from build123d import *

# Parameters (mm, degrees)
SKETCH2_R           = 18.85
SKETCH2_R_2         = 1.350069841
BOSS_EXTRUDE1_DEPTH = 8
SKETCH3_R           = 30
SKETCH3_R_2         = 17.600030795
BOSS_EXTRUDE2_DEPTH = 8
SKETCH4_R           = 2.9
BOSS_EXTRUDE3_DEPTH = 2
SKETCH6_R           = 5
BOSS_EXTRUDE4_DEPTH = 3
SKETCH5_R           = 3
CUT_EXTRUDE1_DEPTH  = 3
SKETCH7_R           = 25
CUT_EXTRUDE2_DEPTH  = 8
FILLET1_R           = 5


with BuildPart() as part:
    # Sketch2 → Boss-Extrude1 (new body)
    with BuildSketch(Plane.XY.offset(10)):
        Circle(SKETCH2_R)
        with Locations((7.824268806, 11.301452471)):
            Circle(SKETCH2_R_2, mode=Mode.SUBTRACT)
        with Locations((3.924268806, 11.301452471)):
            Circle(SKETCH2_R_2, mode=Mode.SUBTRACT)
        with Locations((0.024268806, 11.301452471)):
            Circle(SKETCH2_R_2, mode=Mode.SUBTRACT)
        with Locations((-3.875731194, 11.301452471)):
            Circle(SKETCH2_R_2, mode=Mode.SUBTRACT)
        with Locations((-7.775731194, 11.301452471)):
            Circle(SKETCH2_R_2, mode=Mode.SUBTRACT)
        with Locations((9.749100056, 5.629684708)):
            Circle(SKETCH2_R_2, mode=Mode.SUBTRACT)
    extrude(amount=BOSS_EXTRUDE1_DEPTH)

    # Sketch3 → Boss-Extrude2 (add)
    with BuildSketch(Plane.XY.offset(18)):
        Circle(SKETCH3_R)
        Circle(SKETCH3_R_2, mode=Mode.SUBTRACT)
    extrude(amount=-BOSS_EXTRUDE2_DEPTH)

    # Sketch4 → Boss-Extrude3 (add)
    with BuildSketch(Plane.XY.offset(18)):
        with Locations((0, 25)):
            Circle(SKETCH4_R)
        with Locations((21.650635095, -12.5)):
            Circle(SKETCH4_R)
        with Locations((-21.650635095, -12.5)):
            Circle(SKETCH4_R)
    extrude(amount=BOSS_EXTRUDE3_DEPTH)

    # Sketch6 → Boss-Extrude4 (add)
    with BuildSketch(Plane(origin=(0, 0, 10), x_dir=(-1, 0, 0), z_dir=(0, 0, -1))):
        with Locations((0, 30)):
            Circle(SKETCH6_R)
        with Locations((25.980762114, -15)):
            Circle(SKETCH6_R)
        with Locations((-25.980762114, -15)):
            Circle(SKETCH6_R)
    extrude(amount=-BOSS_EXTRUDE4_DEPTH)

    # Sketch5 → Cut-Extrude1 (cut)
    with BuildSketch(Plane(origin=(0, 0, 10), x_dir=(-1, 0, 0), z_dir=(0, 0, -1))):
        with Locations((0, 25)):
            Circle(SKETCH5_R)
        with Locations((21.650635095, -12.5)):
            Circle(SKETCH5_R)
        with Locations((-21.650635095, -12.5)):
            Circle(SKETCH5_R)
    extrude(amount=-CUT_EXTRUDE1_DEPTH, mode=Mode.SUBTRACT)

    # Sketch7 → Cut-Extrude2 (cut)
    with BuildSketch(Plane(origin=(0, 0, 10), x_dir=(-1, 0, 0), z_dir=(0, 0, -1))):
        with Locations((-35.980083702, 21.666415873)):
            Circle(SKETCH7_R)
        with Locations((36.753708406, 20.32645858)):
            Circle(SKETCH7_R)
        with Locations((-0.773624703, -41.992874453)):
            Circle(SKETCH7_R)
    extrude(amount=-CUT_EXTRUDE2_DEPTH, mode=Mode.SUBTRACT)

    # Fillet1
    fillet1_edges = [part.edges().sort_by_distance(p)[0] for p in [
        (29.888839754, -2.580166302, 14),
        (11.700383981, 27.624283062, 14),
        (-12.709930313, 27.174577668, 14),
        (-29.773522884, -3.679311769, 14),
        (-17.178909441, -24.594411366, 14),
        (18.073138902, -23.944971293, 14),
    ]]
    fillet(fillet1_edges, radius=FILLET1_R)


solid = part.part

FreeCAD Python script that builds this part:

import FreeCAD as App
import Part
import Sketcher
Q = App.Units.Quantity


def edges_at(feature, points):
    """Names of the edges that pass closest to the given points."""
    edges = feature.Shape.Edges
    near = lambda p: min(range(len(edges)), key=lambda i: edges[i].distToShape(Part.Vertex(*p))[0])
    return sorted({f"Edge{near(p) + 1}" for p in points})

doc = App.newDocument("Part")
params = doc.addObject("Spreadsheet::Sheet", "Params")
for row, (alias, value) in enumerate([
    ("sketch1_diameter", "37.7 mm"),
    ("pad1_length", "8 mm"),
    ("sketch2_diameter", "60 mm"),
    ("pad2_length", "8 mm"),
    ("sketch3_diameter", "5.8 mm"),
    ("pad3_length", "2 mm"),
    ("sketch4_diameter", "10 mm"),
    ("pad4_length", "3 mm"),
    ("sketch5_diameter", "6 mm"),
    ("pocket1_length", "3 mm"),
    ("sketch6_diameter", "50 mm"),
    ("pocket2_length", "8 mm"),
    ("fillet_radius", "5 mm"),
], start=1):
    params.set(f"A{row}", alias)
    params.set(f"B{row}", "=" + value)
    params.setAlias(f"B{row}", alias)

body = doc.addObject("PartDesign::Body", "Body")

# Sketch on XY plane
sketch1 = doc.addObject("Sketcher::SketchObject", "Sketch")
body.addObject(sketch1)
sketch1.AttachmentSupport = (doc.XY_Plane, [""])
sketch1.MapMode = "FlatFace"
sketch1.AttachmentOffset = App.Placement(App.Vector(0, 0, 10), App.Rotation())
sketch1.addGeometry([
    Part.Circle(App.Vector(0, 0, 0), App.Vector(0, 0, 1), 18.9),  # 0
    Part.Circle(App.Vector(9.7, 5.6, 0), App.Vector(0, 0, 1), 1.4),  # 1
    Part.Circle(App.Vector(-7.8, 11.3, 0), App.Vector(0, 0, 1), 1.4),  # 2
    Part.Circle(App.Vector(-3.9, 11.3, 0), App.Vector(0, 0, 1), 1.4),  # 3
    Part.Circle(App.Vector(0, 11.3, 0), App.Vector(0, 0, 1), 1.4),  # 4
    Part.Circle(App.Vector(3.9, 11.3, 0), App.Vector(0, 0, 1), 1.4),  # 5
    Part.Circle(App.Vector(7.8, 11.3, 0), App.Vector(0, 0, 1), 1.4),  # 6
], False)
sketch1.addConstraint([
    Sketcher.Constraint("Coincident", 0, 3, -1, 1),
    Sketcher.Constraint("Equal", 1, 2),
    Sketcher.Constraint("Equal", 2, 3),
    Sketcher.Constraint("Equal", 3, 4),
    Sketcher.Constraint("Equal", 4, 5),
    Sketcher.Constraint("Equal", 5, 6),
    Sketcher.Constraint("Horizontal", 2, 3, 3, 3),
    Sketcher.Constraint("Horizontal", 3, 3, 4, 3),
    Sketcher.Constraint("Horizontal", 4, 3, 5, 3),
    Sketcher.Constraint("Horizontal", 5, 3, 6, 3),
    Sketcher.Constraint("Diameter", 0, Q("37.7 mm")),
    Sketcher.Constraint("DistanceX", 2, 3, 3, 3, Q("3.9 mm")),
    Sketcher.Constraint("DistanceX", 3, 3, 4, 3, Q("3.9 mm")),
    Sketcher.Constraint("DistanceX", 4, 3, 5, 3, Q("3.9 mm")),
    Sketcher.Constraint("DistanceX", 5, 3, 6, 3, Q("3.9 mm")),
    Sketcher.Constraint("Diameter", 1, Q("2.70014 mm")),
    Sketcher.Constraint("DistanceX", -1, 1, 1, 3, Q("9.7491 mm")),
    Sketcher.Constraint("DistanceX", 2, 3, -1, 1, Q("7.775731 mm")),
    Sketcher.Constraint("DistanceY", -1, 1, 1, 3, Q("5.629685 mm")),
    Sketcher.Constraint("DistanceY", -1, 1, 2, 3, Q("11.301452 mm")),
])
sketch1.setExpression("Constraints[10]", "Params.sketch1_diameter")
pad1 = doc.addObject("PartDesign::Pad", "Pad")
body.addObject(pad1)
pad1.Profile = sketch1
pad1.setExpression("Length", "Params.pad1_length")

# Sketch on XY plane
sketch2 = doc.addObject("Sketcher::SketchObject", "Sketch001")
body.addObject(sketch2)
sketch2.AttachmentSupport = (doc.XY_Plane, [""])
sketch2.MapMode = "FlatFace"
sketch2.AttachmentOffset = App.Placement(App.Vector(0, 0, 18), App.Rotation())
sketch2.addGeometry([
    Part.Circle(App.Vector(0, 0, 0), App.Vector(0, 0, 1), 30),
    Part.Circle(App.Vector(0, 0, 0), App.Vector(0, 0, 1), 18),
], False)
sketch2.addConstraint([
    Sketcher.Constraint("Coincident", 0, 3, -1, 1),
    Sketcher.Constraint("Coincident", 1, 3, -1, 1),
    Sketcher.Constraint("Diameter", 0, Q("60 mm")),
    Sketcher.Constraint("Diameter", 1, Q("35.200062 mm")),
])
sketch2.setExpression("Constraints[2]", "Params.sketch2_diameter")
pad2 = doc.addObject("PartDesign::Pad", "Pad001")
body.addObject(pad2)
pad2.Profile = sketch2
pad2.setExpression("Length", "Params.pad2_length")
pad2.Reversed = True

# Sketch on XY plane
sketch3 = doc.addObject("Sketcher::SketchObject", "Sketch002")
body.addObject(sketch3)
sketch3.AttachmentSupport = (doc.XY_Plane, [""])
sketch3.MapMode = "FlatFace"
sketch3.AttachmentOffset = App.Placement(App.Vector(0, 0, 18), App.Rotation())
sketch3.addGeometry([
    Part.Circle(App.Vector(0, 25, 0), App.Vector(0, 0, 1), 2.9),
    Part.Circle(App.Vector(21.7, -12.5, 0), App.Vector(0, 0, 1), 2.9),
    Part.Circle(App.Vector(-21.7, -12.5, 0), App.Vector(0, 0, 1), 2.9),
], False)
sketch3.addConstraint([
    Sketcher.Constraint("Equal", 0, 1),
    Sketcher.Constraint("Equal", 1, 2),
    Sketcher.Constraint("Symmetric", 1, 3, 2, 3, -2),
    Sketcher.Constraint("PointOnObject", 0, 3, -2),
    Sketcher.Constraint("Diameter", 0, Q("5.8 mm")),
    Sketcher.Constraint("DistanceY", -1, 1, 0, 3, Q("25 mm")),
    Sketcher.Constraint("DistanceY", 1, 3, -1, 1, Q("12.5 mm")),
    Sketcher.Constraint("DistanceX", 2, 3, 1, 3, Q("43.30127 mm")),
])
sketch3.setExpression("Constraints[4]", "Params.sketch3_diameter")
pad3 = doc.addObject("PartDesign::Pad", "Pad002")
body.addObject(pad3)
pad3.Profile = sketch3
pad3.setExpression("Length", "Params.pad3_length")

# Sketch on XY plane
sketch4 = doc.addObject("Sketcher::SketchObject", "Sketch003")
body.addObject(sketch4)
sketch4.AttachmentSupport = (doc.XY_Plane, [""])
sketch4.MapMode = "FlatFace"
sketch4.AttachmentOffset = App.Placement(App.Vector(0, 0, 10), App.Rotation())
sketch4.addGeometry([
    Part.Circle(App.Vector(0, 30, 0), App.Vector(0, 0, 1), 5),
    Part.Circle(App.Vector(-26, -15, 0), App.Vector(0, 0, 1), 5),
    Part.Circle(App.Vector(26, -15, 0), App.Vector(0, 0, 1), 5),
], False)
sketch4.addConstraint([
    Sketcher.Constraint("Equal", 0, 1),
    Sketcher.Constraint("Equal", 1, 2),
    Sketcher.Constraint("Symmetric", 1, 3, 2, 3, -2),
    Sketcher.Constraint("PointOnObject", 0, 3, -2),
    Sketcher.Constraint("Diameter", 0, Q("10 mm")),
    Sketcher.Constraint("DistanceY", -1, 1, 0, 3, Q("30 mm")),
    Sketcher.Constraint("DistanceY", 1, 3, -1, 1, Q("15 mm")),
    Sketcher.Constraint("DistanceX", 1, 3, -1, 1, Q("25.980762 mm")),
])
sketch4.setExpression("Constraints[4]", "Params.sketch4_diameter")
pad4 = doc.addObject("PartDesign::Pad", "Pad003")
body.addObject(pad4)
pad4.Profile = sketch4
pad4.setExpression("Length", "Params.pad4_length")

# Sketch on XY plane
sketch5 = doc.addObject("Sketcher::SketchObject", "Sketch004")
body.addObject(sketch5)
sketch5.AttachmentSupport = (doc.XY_Plane, [""])
sketch5.MapMode = "FlatFace"
sketch5.AttachmentOffset = App.Placement(App.Vector(0, 0, 10), App.Rotation())
sketch5.addGeometry([
    Part.Circle(App.Vector(0, 25, 0), App.Vector(0, 0, 1), 3),
    Part.Circle(App.Vector(-21.7, -12.5, 0), App.Vector(0, 0, 1), 3),
    Part.Circle(App.Vector(21.7, -12.5, 0), App.Vector(0, 0, 1), 3),
], False)
sketch5.addConstraint([
    Sketcher.Constraint("Equal", 0, 1),
    Sketcher.Constraint("Equal", 1, 2),
    Sketcher.Constraint("Symmetric", 1, 3, 2, 3, -2),
    Sketcher.Constraint("PointOnObject", 0, 3, -2),
    Sketcher.Constraint("Diameter", 0, Q("6 mm")),
    Sketcher.Constraint("DistanceY", -1, 1, 0, 3, Q("25 mm")),
    Sketcher.Constraint("DistanceY", 1, 3, -1, 1, Q("12.5 mm")),
    Sketcher.Constraint("DistanceX", 1, 3, 2, 3, Q("43.30127 mm")),
])
sketch5.setExpression("Constraints[4]", "Params.sketch5_diameter")
pocket1 = doc.addObject("PartDesign::Pocket", "Pocket")
body.addObject(pocket1)
pocket1.Profile = sketch5
pocket1.setExpression("Length", "Params.pocket1_length")
pocket1.Reversed = True

# Sketch on XY plane
sketch6 = doc.addObject("Sketcher::SketchObject", "Sketch005")
body.addObject(sketch6)
sketch6.AttachmentSupport = (doc.XY_Plane, [""])
sketch6.MapMode = "FlatFace"
sketch6.AttachmentOffset = App.Placement(App.Vector(0, 0, 10), App.Rotation())
sketch6.addGeometry([
    Part.Circle(App.Vector(36, 22, 0), App.Vector(0, 0, 1), 25),
    Part.Circle(App.Vector(-37, 20, 0), App.Vector(0, 0, 1), 25),
    Part.Circle(App.Vector(1, -42, 0), App.Vector(0, 0, 1), 25),
], False)
sketch6.addConstraint([
    Sketcher.Constraint("Equal", 0, 1),
    Sketcher.Constraint("Equal", 1, 2),
    Sketcher.Constraint("Diameter", 0, Q("50 mm")),
    Sketcher.Constraint("DistanceX", 1, 3, -1, 1, Q("36.753708 mm")),
    Sketcher.Constraint("DistanceY", -1, 1, 1, 3, Q("20.326459 mm")),
    Sketcher.Constraint("DistanceX", 2, 3, 0, 3, Q("35.206459 mm")),
    Sketcher.Constraint("DistanceY", 2, 3, 0, 3, Q("63.65929 mm")),
    Sketcher.Constraint("DistanceX", -1, 1, 0, 3, Q("35.980084 mm")),
    Sketcher.Constraint("DistanceY", -1, 1, 0, 3, Q("21.666416 mm")),
])
sketch6.setExpression("Constraints[2]", "Params.sketch6_diameter")
pocket2 = doc.addObject("PartDesign::Pocket", "Pocket001")
body.addObject(pocket2)
pocket2.Profile = sketch6
pocket2.setExpression("Length", "Params.pocket2_length")
pocket2.Reversed = True
doc.recompute()

fillet = doc.addObject("PartDesign::Fillet", "Fillet")
body.addObject(fillet)
fillet.Base = (pocket2, edges_at(pocket2, [
    (29.889, -2.58, 14),
    (11.7, 27.624, 14),
    (-12.71, 27.175, 14),
    (-29.774, -3.679, 14),
    (-17.179, -24.594, 14),
    (18.073, -23.945, 14),
]))
fillet.setExpression("Radius", "Params.fillet_radius")

doc.recompute()
